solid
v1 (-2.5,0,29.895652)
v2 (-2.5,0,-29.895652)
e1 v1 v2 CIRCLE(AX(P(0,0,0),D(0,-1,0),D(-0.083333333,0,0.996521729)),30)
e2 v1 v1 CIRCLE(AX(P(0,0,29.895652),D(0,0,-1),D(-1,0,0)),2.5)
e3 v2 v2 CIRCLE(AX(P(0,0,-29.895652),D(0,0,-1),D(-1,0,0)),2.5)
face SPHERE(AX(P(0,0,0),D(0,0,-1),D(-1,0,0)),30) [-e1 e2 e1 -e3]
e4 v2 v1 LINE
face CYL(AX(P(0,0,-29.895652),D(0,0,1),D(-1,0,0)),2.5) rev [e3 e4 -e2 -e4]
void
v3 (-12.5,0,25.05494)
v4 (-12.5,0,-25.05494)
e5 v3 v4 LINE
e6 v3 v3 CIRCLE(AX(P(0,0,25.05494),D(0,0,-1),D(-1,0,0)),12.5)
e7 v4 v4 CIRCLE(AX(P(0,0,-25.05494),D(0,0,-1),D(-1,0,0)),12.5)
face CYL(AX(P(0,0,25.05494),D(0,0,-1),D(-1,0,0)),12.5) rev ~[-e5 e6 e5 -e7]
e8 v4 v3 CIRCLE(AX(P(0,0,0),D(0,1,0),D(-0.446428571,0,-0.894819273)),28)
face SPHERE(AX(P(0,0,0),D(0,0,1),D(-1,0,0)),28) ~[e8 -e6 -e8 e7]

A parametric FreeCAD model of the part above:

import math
import FreeCAD as App
import Part
import Sketcher

V = App.Vector
Q = App.Units.Quantity

doc = App.newDocument("Part")
body = doc.addObject("PartDesign::Body", "Body")

# Sketch on XZ plane
sketch1 = body.newObject("Sketcher::SketchObject", "Sketch")
sketch1.AttachmentSupport = (doc.getObject("XZ_Plane"), [""])
sketch1.MapMode = "FlatFace"
sketch1.addGeometry([
    Part.ArcOfCircle(Part.Circle(V(0, 0, 0), V(0, 0, 1), 30), math.radians(95), math.radians(265)),
    Part.LineSegment(V(-2, -30, 0), V(-2, 30, 0)),
    Part.ArcOfCircle(Part.Circle(V(0, 0, 0), V(0, 0, 1), 28), math.radians(117), math.radians(243)),
    Part.LineSegment(V(-12, 25, 0), V(-12, -25, 0)),
], False)
sketch1.addConstraint([
    Sketcher.Constraint("Coincident", 0, 1, 1, 2),
    Sketcher.Constraint("Coincident", 1, 1, 0, 2),
    Sketcher.Constraint("Coincident", 2, 1, 3, 1),
    Sketcher.Constraint("Coincident", 3, 2, 2, 2),
    Sketcher.Constraint("Vertical", 1),
    Sketcher.Constraint("Vertical", 3),
    Sketcher.Constraint("Coincident", 0, 3, -1, 1),
    Sketcher.Constraint("Coincident", 2, 3, -1, 1),
    Sketcher.Constraint("Radius", 0, Q("30 mm")),
    Sketcher.Constraint("Radius", 2, Q("28 mm")),
    Sketcher.Constraint("DistanceX", 2, 1, 0, 1, Q("10 mm")),
    Sketcher.Constraint("DistanceX", 0, 1, -1, 1, Q("2.5 mm")),
])
revolution = body.newObject("PartDesign::Revolution", "Revolution")
revolution.Profile = sketch1
revolution.ReferenceAxis = (sketch1, ["V_Axis"])
revolution.Angle = 360

doc.recompute()
